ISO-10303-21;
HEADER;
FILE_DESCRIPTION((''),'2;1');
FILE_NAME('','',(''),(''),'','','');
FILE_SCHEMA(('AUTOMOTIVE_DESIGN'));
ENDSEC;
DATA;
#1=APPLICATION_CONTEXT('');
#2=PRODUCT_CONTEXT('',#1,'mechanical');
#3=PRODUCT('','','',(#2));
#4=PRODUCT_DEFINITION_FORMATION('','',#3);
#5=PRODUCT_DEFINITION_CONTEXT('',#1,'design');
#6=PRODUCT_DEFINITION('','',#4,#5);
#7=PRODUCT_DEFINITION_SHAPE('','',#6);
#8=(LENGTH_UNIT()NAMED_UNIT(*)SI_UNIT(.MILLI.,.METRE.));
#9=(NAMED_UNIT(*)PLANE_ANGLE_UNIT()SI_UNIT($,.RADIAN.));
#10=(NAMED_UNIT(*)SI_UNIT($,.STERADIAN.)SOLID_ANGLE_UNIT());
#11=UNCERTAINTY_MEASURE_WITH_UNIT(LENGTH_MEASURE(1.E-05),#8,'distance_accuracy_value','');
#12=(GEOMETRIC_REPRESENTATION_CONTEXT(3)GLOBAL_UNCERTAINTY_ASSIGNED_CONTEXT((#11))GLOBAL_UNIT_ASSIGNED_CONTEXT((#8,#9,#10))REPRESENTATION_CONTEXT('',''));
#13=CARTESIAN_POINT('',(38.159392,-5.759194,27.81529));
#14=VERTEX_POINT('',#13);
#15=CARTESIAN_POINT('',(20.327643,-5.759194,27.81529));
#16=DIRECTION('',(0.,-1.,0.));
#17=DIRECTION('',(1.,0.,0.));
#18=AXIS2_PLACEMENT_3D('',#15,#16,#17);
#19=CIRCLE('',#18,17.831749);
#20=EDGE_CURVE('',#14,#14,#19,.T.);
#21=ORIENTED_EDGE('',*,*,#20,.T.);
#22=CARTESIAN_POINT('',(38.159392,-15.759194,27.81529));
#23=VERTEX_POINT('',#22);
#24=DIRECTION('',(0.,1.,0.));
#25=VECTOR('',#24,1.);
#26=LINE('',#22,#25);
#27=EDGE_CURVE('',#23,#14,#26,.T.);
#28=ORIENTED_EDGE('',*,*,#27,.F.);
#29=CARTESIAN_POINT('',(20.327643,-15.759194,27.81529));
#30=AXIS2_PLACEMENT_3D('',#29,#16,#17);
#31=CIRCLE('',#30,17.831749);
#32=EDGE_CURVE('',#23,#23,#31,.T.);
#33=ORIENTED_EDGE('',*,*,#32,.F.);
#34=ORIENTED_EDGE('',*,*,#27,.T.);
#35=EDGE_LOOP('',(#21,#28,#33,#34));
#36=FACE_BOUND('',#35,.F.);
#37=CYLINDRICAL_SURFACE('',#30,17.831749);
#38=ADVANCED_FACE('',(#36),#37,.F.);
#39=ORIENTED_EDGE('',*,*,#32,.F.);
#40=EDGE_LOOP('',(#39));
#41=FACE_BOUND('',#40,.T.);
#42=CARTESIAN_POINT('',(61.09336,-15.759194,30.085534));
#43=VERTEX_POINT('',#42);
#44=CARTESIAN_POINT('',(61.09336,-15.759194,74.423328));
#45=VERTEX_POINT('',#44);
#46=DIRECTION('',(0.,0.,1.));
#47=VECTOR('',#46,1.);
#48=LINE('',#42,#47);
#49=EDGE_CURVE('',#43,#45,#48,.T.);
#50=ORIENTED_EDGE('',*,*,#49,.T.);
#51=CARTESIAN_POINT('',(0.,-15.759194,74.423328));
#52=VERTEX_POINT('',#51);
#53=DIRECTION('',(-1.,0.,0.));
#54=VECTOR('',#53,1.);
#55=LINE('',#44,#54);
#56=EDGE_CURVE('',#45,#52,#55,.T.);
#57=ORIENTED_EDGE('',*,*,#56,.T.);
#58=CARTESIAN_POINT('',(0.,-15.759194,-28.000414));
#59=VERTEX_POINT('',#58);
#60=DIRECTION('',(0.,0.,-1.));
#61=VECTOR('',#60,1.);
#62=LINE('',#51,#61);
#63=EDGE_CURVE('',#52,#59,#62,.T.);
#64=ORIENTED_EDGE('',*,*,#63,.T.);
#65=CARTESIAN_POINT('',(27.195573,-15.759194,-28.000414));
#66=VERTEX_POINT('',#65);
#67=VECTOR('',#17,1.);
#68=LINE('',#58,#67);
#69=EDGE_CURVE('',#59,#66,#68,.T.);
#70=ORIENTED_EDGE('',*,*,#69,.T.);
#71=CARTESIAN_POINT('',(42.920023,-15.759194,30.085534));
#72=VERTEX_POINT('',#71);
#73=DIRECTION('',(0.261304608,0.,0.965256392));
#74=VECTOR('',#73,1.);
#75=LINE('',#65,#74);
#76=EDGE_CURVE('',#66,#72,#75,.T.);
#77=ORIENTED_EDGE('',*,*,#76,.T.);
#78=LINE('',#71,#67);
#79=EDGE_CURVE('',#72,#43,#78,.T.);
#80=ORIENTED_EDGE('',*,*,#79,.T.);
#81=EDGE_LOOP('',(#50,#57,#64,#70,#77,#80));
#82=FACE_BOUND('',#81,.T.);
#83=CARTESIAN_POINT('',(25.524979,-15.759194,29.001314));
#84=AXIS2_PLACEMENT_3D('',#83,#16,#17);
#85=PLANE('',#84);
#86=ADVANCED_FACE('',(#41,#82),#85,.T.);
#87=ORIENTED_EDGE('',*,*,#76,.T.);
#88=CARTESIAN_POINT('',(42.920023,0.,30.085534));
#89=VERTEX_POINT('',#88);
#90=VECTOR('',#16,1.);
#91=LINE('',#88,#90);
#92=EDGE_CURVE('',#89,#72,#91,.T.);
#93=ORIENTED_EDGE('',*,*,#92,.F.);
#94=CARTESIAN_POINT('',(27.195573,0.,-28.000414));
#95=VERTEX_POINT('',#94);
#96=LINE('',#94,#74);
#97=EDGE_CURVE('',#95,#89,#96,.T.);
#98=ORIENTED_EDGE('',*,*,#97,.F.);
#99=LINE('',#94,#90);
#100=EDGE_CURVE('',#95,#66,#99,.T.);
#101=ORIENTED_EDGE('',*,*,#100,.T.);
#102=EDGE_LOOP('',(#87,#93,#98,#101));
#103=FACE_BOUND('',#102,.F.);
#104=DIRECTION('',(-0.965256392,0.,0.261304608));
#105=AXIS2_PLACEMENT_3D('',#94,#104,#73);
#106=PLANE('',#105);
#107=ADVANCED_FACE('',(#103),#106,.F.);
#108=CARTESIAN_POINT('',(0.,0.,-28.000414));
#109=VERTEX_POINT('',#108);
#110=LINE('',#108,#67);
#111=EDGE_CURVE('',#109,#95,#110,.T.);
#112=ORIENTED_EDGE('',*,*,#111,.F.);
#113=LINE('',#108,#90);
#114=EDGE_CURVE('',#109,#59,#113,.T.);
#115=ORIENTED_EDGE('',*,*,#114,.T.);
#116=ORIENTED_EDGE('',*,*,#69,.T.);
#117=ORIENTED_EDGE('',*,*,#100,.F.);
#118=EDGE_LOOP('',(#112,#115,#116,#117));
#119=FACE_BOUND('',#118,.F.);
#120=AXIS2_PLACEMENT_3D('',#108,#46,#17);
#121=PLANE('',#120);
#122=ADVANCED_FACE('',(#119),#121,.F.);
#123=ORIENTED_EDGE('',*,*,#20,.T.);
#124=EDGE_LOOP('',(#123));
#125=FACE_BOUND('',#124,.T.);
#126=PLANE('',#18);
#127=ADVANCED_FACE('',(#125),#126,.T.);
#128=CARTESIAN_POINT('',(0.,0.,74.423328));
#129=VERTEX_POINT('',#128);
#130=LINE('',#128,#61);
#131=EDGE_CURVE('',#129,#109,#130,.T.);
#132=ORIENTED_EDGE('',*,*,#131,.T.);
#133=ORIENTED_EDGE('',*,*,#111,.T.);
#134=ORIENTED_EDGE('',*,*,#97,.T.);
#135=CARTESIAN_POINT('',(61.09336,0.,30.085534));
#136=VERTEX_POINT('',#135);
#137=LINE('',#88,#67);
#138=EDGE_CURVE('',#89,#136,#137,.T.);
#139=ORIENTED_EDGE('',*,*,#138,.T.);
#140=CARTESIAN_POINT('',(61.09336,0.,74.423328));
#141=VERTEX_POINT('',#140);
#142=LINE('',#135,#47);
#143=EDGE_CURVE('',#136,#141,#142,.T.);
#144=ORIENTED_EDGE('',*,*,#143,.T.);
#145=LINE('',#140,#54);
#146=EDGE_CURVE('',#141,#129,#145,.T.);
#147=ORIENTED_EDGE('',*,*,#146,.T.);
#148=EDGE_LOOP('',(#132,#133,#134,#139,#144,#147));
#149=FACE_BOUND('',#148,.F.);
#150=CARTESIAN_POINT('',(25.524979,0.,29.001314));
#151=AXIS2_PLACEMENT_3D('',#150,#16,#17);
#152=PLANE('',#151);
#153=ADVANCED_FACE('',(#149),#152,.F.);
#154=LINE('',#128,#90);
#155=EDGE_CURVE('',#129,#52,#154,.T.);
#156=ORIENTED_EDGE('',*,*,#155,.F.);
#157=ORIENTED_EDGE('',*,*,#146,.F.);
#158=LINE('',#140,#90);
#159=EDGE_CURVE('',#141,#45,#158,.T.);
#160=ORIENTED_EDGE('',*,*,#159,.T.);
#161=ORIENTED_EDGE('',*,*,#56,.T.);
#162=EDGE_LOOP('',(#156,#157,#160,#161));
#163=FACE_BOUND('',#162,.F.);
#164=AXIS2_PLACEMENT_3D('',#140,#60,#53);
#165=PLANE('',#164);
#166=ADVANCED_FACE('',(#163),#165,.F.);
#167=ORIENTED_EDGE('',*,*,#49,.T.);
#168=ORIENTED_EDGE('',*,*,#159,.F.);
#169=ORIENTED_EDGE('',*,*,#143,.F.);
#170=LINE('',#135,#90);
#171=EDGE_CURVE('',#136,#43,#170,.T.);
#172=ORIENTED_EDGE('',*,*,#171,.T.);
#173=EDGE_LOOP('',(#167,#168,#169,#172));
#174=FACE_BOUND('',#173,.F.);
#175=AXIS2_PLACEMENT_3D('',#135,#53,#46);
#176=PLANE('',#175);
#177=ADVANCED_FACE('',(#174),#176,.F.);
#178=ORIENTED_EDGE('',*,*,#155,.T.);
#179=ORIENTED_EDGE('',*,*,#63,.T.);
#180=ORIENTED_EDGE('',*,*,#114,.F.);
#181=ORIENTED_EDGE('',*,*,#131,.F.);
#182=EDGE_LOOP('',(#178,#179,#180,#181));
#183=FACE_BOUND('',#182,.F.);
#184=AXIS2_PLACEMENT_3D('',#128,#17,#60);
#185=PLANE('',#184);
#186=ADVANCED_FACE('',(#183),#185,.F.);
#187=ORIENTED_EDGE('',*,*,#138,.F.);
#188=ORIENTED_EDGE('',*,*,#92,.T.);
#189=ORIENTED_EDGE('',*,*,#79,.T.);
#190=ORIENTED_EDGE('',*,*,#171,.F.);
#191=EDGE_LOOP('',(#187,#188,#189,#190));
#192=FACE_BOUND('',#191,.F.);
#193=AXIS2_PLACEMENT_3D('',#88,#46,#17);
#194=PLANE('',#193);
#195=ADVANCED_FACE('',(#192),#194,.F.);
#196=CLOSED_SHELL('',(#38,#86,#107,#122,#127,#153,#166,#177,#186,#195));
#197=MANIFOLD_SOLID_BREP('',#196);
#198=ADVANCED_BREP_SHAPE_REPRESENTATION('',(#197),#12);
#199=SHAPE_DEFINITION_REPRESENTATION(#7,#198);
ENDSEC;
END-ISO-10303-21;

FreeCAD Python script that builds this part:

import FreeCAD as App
import Part
import Sketcher

V = App.Vector
Q = App.Units.Quantity

doc = App.newDocument("Part")
body = doc.addObject("PartDesign::Body", "Body")

sketch1 = body.newObject("Sketcher::SketchObject", "Sketch")
sketch1.AttachmentSupport = (doc.getObject("XZ_Plane"), [""])
sketch1.MapMode = "FlatFace"
sketch1.addGeometry(Part.LineSegment(V(0, -28.000414, 0), V(27.195573, -28.000414, 0)), False)
sketch1.addGeometry(Part.LineSegment(V(27.195573, -28.000414, 0), V(42.920023, 30.085534, 0)), False)
sketch1.addGeometry(Part.LineSegment(V(42.920023, 30.085534, 0), V(61.09336, 30.085534, 0)), False)
sketch1.addGeometry(Part.LineSegment(V(61.09336, 30.085534, 0), V(61.09336, 74.423328, 0)), False)
sketch1.addGeometry(Part.LineSegment(V(61.09336, 74.423328, 0), V(0, 74.423328, 0)), False)
sketch1.addGeometry(Part.LineSegment(V(0, 74.423328, 0), V(0, -28.000414, 0)), False)
sketch1.addConstraint(Sketcher.Constraint("Coincident", 0, 2, 1, 1))
sketch1.addConstraint(Sketcher.Constraint("Coincident", 1, 2, 2, 1))
sketch1.addConstraint(Sketcher.Constraint("Coincident", 2, 2, 3, 1))
sketch1.addConstraint(Sketcher.Constraint("Coincident", 3, 2, 4, 1))
sketch1.addConstraint(Sketcher.Constraint("Coincident", 4, 2, 5, 1))
sketch1.addConstraint(Sketcher.Constraint("Coincident", 5, 2, 0, 1))
sketch1.addConstraint(Sketcher.Constraint("Horizontal", 0))
sketch1.addConstraint(Sketcher.Constraint("Horizontal", 2))
sketch1.addConstraint(Sketcher.Constraint("Vertical", 3))
sketch1.addConstraint(Sketcher.Constraint("Horizontal", 4))
sketch1.addConstraint(Sketcher.Constraint("Vertical", 5))
sketch1.addConstraint(Sketcher.Constraint("PointOnObject", 4, 2, -2))
sketch1.addConstraint(Sketcher.Constraint("DistanceX", 4, 2, 4, 1, Q("61.09336 mm")))
sketch1.addConstraint(Sketcher.Constraint("DistanceX", 0, 1, 0, 2, Q("27.195573 mm")))
sketch1.addConstraint(Sketcher.Constraint("DistanceX", 2, 1, 2, 2, Q("18.173337 mm")))
sketch1.addConstraint(Sketcher.Constraint("DistanceY", 3, 1, 3, 2, Q("44.337794 mm")))
sketch1.addConstraint(Sketcher.Constraint("DistanceY", 5, 2, 5, 1, Q("102.423742 mm")))
sketch1.addConstraint(Sketcher.Constraint("DistanceY", 0, 2, -1, 1, Q("28.000414 mm")))
pad1 = body.newObject("PartDesign::Pad", "Pad")
pad1.Profile = sketch1
pad1.Length = 15.759194

sketch2 = body.newObject("Sketcher::SketchObject", "Sketch001")
sketch2.AttachmentSupport = (doc.getObject("XZ_Plane"), [""])
sketch2.MapMode = "FlatFace"
sketch2.AttachmentOffset = App.Placement(V(0, 0, 15.759194), App.Rotation())
sketch2.addGeometry(Part.Circle(V(20.327643, 27.81529, 0), V(0, 0, 1), 17.831749), False)
sketch2.addConstraint(Sketcher.Constraint("Diameter", 0, Q("35.663498 mm")))
sketch2.addConstraint(Sketcher.Constraint("DistanceY", -1, 1, 0, 3, Q("27.81529 mm")))
sketch2.addConstraint(Sketcher.Constraint("DistanceX", -1, 1, 0, 3, Q("20.327643 mm")))
pocket1 = body.newObject("PartDesign::Pocket", "Pocket")
pocket1.Profile = sketch2
pocket1.Length = 10

doc.recompute()
